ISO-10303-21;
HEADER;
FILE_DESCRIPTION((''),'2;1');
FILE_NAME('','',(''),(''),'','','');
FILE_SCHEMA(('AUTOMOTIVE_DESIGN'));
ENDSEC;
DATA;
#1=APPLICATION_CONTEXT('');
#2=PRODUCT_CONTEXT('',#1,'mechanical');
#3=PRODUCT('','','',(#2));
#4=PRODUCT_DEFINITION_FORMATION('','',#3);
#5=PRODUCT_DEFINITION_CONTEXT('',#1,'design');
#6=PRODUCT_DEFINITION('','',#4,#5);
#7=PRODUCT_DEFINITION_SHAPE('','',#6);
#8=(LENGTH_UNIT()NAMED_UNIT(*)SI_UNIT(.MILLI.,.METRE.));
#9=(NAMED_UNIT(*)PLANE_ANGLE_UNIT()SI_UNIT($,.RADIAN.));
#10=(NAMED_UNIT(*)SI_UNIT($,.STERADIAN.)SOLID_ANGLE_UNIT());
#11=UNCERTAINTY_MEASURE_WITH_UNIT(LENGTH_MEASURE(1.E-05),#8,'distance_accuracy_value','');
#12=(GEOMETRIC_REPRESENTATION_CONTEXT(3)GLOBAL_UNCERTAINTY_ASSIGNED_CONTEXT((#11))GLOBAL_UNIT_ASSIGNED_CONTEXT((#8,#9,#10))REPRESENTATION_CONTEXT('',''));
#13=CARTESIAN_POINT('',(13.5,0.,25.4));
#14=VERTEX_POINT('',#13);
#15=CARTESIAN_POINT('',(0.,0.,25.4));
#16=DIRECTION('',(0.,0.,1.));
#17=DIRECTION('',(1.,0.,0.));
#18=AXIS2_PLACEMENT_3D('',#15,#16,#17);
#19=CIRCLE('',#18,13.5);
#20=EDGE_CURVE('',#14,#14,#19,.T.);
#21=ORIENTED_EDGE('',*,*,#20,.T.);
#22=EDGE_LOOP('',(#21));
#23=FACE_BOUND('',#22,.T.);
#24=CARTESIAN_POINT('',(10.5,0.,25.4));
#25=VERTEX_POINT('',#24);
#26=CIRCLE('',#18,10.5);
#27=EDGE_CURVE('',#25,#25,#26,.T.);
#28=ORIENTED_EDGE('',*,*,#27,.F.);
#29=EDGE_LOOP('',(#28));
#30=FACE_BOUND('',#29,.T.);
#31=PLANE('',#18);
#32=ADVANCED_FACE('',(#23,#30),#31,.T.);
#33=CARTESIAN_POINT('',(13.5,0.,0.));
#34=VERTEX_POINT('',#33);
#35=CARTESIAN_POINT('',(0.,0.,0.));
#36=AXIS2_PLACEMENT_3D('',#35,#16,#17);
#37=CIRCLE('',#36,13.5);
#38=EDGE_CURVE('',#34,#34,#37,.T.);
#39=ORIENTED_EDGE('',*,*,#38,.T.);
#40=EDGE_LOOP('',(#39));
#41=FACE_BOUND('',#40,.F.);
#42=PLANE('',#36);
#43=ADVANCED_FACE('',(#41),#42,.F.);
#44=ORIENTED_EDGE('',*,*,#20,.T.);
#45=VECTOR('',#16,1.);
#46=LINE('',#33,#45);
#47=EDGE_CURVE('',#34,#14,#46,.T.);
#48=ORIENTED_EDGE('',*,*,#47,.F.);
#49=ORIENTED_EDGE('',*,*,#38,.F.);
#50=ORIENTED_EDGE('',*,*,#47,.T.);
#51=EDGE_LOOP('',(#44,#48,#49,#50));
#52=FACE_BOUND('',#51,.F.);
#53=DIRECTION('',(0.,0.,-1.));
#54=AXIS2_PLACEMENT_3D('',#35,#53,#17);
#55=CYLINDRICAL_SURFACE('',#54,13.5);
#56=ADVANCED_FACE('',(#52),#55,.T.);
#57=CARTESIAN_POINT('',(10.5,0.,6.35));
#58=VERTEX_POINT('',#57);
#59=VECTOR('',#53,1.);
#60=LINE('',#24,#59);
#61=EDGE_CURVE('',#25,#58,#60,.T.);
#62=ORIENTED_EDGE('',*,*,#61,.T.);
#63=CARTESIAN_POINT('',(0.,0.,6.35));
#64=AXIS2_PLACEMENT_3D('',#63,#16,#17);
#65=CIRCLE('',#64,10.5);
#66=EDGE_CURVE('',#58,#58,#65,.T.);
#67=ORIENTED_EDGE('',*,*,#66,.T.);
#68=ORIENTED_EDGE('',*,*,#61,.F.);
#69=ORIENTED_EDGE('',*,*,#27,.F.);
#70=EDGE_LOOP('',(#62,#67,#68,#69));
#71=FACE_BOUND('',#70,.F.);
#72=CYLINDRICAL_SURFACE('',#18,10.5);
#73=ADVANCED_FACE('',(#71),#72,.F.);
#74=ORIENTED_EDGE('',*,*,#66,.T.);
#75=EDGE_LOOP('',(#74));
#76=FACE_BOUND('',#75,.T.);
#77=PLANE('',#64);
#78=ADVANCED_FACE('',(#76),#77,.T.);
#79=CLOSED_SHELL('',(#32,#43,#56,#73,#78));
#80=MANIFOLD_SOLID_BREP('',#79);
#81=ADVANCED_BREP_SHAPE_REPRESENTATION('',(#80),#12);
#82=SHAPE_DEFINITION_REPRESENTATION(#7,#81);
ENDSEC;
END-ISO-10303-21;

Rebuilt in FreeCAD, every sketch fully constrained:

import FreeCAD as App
import Part
import Sketcher
Q = App.Units.Quantity

doc = App.newDocument("Part")
body = doc.addObject("PartDesign::Body", "Body")

sketch1 = body.newObject("Sketcher::SketchObject", "Sketch")
sketch1.AttachmentSupport = (doc.getObject("XY_Plane"), [""])
sketch1.MapMode = "FlatFace"
sketch1.addGeometry(Part.Circle(App.Vector(0, 0, 0), App.Vector(0, 0, 1), 14), False)
sketch1.addConstraint([
    Sketcher.Constraint("Coincident", 0, 3, -1, 1),
    Sketcher.Constraint("Diameter", 0, Q("1.063 in")),
])
pad1 = body.newObject("PartDesign::Pad", "Pad")
pad1.Profile = sketch1
pad1.Length = Q("1 in")

sketch2 = body.newObject("Sketcher::SketchObject", "Sketch001")
sketch2.AttachmentSupport = (doc.getObject("XY_Plane"), [""])
sketch2.MapMode = "FlatFace"
sketch2.AttachmentOffset = App.Placement(App.Vector(0, 0, 1 * 25.4), App.Rotation())
sketch2.addGeometry(Part.Circle(App.Vector(0, 0, 0), App.Vector(0, 0, 1), 10), False)
sketch2.addConstraint([
    Sketcher.Constraint("Coincident", 0, 3, -1, 1),
    Sketcher.Constraint("Diameter", 0, 21.0),
])
pocket1 = body.newObject("PartDesign::Pocket", "Pocket")
pocket1.Profile = sketch2
pocket1.Length = Q("0.75 in")

doc.recompute()
